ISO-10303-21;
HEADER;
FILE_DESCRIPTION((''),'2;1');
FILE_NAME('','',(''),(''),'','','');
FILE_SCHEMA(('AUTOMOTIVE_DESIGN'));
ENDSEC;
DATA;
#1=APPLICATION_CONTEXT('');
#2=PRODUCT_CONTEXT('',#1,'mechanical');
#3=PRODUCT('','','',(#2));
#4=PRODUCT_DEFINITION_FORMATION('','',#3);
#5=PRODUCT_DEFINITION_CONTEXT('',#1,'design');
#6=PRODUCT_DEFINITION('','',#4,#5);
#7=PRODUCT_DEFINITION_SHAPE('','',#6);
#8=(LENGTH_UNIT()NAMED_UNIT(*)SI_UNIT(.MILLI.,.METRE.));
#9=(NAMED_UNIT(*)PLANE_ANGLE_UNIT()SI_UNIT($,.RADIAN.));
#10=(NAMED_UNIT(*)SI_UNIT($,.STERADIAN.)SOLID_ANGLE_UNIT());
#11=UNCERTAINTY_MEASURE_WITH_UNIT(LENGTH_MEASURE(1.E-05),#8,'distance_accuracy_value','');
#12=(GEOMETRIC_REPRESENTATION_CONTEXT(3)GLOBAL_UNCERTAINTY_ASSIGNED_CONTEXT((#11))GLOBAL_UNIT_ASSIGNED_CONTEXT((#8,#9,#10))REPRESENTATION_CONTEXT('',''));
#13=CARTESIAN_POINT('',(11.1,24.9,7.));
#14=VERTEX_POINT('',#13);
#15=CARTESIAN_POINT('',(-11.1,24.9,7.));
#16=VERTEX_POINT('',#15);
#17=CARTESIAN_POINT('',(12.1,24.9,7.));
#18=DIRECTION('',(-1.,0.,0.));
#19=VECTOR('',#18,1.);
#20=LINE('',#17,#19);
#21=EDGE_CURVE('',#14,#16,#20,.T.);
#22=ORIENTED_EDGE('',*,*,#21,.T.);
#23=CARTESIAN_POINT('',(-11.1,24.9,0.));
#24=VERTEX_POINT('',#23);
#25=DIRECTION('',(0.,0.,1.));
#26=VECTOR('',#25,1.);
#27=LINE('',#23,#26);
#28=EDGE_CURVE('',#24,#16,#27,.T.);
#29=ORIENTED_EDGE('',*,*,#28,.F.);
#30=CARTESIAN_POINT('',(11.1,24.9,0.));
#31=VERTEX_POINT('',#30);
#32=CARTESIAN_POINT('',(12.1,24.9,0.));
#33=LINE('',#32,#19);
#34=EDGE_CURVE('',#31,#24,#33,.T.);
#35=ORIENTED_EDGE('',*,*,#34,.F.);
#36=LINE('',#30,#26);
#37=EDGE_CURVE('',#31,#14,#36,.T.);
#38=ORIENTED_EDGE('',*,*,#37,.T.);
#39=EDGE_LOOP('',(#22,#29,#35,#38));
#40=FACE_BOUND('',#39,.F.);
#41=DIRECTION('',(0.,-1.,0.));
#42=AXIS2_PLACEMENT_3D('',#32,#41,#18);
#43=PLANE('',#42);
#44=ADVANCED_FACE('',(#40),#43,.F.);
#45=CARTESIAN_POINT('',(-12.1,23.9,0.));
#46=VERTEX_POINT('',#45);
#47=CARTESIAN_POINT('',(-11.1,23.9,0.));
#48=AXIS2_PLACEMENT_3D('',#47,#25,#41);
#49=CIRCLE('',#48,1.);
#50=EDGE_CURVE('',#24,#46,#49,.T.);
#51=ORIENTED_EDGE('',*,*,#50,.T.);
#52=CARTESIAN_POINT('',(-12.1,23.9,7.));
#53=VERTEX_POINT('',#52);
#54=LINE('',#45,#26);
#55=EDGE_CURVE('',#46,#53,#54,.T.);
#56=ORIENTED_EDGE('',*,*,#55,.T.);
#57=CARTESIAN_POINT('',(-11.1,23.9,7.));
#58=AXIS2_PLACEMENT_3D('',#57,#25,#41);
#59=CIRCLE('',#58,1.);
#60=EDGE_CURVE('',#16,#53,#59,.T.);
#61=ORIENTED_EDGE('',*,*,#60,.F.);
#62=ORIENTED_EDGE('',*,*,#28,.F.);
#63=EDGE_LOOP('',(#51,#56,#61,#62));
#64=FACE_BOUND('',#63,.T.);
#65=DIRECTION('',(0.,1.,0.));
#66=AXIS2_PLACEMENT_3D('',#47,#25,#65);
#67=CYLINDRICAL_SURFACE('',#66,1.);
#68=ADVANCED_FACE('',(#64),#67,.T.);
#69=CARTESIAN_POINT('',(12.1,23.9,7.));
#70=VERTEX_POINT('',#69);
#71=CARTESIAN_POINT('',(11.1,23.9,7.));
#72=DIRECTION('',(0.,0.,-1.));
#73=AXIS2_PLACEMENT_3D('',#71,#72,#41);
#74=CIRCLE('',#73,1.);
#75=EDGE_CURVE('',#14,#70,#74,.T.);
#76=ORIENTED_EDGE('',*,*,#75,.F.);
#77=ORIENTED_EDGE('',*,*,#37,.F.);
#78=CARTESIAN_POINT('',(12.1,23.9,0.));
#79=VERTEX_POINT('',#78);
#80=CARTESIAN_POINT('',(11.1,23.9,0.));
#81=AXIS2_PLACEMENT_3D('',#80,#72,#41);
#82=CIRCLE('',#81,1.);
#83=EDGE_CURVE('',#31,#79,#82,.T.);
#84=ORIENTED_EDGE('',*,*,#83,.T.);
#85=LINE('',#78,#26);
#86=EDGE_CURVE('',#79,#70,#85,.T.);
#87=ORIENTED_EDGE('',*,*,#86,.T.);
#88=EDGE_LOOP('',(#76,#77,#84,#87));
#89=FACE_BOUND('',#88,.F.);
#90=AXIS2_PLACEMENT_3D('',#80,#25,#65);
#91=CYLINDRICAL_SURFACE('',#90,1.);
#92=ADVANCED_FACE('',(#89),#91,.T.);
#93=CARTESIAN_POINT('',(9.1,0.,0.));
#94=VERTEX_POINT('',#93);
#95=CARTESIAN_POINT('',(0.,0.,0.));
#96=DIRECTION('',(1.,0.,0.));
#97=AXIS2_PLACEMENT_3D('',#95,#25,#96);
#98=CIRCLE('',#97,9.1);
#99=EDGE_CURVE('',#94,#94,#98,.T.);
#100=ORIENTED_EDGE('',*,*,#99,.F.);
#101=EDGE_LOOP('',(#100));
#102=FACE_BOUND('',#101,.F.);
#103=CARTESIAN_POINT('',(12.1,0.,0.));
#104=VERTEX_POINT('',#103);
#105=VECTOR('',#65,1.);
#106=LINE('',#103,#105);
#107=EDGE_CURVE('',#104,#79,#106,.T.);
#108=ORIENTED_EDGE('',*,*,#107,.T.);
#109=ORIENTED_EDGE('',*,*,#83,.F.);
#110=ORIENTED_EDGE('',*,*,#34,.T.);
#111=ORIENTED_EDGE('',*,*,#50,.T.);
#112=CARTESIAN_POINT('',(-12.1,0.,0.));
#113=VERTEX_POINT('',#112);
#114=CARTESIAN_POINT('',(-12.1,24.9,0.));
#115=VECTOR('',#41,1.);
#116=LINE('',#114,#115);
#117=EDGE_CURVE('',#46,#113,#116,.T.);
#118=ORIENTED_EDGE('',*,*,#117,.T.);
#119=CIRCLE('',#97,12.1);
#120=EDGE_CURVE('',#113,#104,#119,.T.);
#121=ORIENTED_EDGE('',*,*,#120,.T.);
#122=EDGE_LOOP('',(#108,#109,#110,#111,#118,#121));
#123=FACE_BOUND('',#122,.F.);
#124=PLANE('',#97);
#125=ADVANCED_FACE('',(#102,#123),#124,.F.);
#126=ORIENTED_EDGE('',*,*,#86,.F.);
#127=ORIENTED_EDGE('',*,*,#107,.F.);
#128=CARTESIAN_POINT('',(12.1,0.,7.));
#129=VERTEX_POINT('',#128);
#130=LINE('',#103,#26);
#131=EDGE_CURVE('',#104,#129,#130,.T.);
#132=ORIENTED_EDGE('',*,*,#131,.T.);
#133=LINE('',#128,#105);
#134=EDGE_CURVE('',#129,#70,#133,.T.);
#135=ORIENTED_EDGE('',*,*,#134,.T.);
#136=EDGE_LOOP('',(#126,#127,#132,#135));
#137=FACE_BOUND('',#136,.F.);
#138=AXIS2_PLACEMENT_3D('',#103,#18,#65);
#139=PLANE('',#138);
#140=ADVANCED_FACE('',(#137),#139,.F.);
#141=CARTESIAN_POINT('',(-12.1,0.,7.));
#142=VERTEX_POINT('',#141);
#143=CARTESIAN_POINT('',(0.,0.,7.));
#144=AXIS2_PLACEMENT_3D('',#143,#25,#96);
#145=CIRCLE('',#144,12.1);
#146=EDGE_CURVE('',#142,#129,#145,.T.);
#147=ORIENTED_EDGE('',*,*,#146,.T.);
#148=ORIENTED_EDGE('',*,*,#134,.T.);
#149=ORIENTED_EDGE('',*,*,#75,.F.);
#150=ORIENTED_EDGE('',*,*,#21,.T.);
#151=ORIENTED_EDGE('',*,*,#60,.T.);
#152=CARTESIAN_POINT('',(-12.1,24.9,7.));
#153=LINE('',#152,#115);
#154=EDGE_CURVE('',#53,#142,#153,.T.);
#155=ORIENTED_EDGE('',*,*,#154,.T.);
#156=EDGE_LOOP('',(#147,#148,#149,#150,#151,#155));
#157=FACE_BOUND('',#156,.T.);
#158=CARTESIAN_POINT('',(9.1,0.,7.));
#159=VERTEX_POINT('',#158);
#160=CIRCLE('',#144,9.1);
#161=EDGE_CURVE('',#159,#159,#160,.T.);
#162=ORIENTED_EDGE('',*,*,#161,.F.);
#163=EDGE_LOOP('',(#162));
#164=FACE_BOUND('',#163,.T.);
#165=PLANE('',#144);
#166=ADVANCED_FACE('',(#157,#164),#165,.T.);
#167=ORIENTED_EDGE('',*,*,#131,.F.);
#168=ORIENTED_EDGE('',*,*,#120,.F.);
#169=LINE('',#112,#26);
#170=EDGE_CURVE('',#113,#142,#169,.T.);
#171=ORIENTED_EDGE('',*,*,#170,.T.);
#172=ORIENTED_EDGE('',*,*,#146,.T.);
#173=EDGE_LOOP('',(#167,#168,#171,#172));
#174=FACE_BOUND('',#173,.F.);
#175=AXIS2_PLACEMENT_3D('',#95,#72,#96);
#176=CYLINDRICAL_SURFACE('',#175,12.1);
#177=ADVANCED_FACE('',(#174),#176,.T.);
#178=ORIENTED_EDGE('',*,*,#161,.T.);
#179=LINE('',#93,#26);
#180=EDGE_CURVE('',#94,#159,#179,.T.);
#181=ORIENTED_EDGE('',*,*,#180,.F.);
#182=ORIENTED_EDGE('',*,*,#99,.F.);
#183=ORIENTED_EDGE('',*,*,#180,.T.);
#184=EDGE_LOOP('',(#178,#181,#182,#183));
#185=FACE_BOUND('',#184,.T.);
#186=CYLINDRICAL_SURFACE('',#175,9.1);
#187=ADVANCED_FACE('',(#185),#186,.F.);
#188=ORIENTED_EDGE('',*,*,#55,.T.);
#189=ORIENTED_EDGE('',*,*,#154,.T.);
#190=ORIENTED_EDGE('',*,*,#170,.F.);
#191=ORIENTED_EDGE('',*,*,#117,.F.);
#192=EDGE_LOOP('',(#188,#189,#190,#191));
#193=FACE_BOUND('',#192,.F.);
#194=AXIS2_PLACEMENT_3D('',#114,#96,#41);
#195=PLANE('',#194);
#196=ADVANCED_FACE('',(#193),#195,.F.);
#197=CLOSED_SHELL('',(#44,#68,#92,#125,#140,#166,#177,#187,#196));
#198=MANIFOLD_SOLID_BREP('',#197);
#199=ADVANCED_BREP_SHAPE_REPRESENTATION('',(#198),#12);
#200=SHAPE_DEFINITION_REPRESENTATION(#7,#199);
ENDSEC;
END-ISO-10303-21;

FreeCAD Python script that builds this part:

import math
import FreeCAD as App
import Part
import Sketcher
Q = App.Units.Quantity


def edges_at(feature, points):
    """Names of the edges that pass closest to the given points."""
    edges = feature.Shape.Edges
    near = lambda p: min(range(len(edges)), key=lambda i: edges[i].distToShape(Part.Vertex(*p))[0])
    return sorted({f"Edge{near(p) + 1}" for p in points})

doc = App.newDocument("Part")
body = doc.addObject("PartDesign::Body", "Body")

sketch1 = body.newObject("Sketcher::SketchObject", "Sketch")
sketch1.AttachmentSupport = (doc.getObject("XY_Plane"), [""])
sketch1.MapMode = "FlatFace"
sketch1.addGeometry([
    Part.ArcOfCircle(Part.Circle(App.Vector(0, 0, 0), App.Vector(0, 0, 1), 12.1), math.radians(180), math.radians(360)),
    Part.LineSegment(App.Vector(12.1, 0, 0), App.Vector(12.1, 24.9, 0)),
    Part.LineSegment(App.Vector(12.1, 24.9, 0), App.Vector(-12.1, 24.9, 0)),
    Part.LineSegment(App.Vector(-12.1, 24.9, 0), App.Vector(-12.1, 0, 0)),
    Part.Circle(App.Vector(0, 0, 0), App.Vector(0, 0, 1), 9.1),
], False)
sketch1.addConstraint([
    Sketcher.Constraint("Tangent", 0, 2, 1, 1),
    Sketcher.Constraint("Coincident", 1, 2, 2, 1),
    Sketcher.Constraint("Coincident", 2, 2, 3, 1),
    Sketcher.Constraint("Tangent", 3, 2, 0, 1),
    Sketcher.Constraint("Vertical", 1),
    Sketcher.Constraint("Horizontal", 2),
    Sketcher.Constraint("Vertical", 3),
    Sketcher.Constraint("Coincident", 0, 3, -1, 1),
    Sketcher.Constraint("Coincident", 4, 3, -1, 1),
    Sketcher.Constraint("Diameter", 4, Q("18.2 mm")),
    Sketcher.Constraint("Radius", 0, Q("12.1 mm")),
    Sketcher.Constraint("DistanceY", 1, 1, 1, 2, Q("24.9 mm")),
])
pad1 = body.newObject("PartDesign::Pad", "Pad")
pad1.Profile = sketch1
pad1.Length = 7
doc.recompute()

fillet = body.newObject("PartDesign::Fillet", "Fillet")
fillet.Base = (pad1, edges_at(pad1, [(-12.1, 24.9, 3.5)]))
fillet.Radius = 1
doc.recompute()

fillet2 = body.newObject("PartDesign::Fillet", "Fillet001")
fillet2.Base = (fillet, edges_at(fillet, [(12.1, 24.9, 3.5)]))
fillet2.Radius = 1

doc.recompute()
